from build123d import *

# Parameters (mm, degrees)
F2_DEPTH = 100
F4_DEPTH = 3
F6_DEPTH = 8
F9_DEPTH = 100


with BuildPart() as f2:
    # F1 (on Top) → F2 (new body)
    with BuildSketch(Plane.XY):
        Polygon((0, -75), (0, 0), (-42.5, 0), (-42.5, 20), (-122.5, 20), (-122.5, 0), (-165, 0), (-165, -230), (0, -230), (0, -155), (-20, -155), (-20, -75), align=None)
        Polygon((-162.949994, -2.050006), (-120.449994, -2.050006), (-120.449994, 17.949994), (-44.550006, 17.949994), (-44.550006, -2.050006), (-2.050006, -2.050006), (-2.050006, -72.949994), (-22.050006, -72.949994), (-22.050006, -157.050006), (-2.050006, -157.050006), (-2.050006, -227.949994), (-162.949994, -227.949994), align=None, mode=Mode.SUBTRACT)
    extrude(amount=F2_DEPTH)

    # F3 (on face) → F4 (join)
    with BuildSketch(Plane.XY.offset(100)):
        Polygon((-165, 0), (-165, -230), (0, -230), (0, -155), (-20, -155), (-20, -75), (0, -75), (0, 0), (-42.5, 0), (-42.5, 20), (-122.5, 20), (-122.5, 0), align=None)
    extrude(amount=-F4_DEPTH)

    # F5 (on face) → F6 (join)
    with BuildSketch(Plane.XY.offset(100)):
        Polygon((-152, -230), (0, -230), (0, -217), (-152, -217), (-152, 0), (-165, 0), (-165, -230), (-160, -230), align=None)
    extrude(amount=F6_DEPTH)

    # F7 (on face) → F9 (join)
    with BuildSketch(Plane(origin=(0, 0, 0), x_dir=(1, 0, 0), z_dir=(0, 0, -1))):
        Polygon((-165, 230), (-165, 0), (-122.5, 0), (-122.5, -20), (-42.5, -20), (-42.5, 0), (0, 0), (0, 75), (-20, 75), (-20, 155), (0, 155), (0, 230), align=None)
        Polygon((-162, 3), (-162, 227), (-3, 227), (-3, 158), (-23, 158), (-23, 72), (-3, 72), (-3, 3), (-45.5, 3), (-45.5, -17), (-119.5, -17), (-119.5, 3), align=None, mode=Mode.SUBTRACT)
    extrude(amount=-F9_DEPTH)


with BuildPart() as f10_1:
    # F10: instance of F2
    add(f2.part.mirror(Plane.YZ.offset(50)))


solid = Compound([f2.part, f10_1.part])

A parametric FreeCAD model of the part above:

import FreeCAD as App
import Part
import Sketcher
Q = App.Units.Quantity


def add_polygon(sketch, points):
    """Adds a closed chain of lines whose ends are joined by coincident constraints."""
    first, n = sketch.GeometryCount, len(points)
    for a, b in zip(points, points[1:] + points[:1]):
        sketch.addGeometry(Part.LineSegment(App.Vector(*a, 0), App.Vector(*b, 0)), False)
    for i in range(n):
        sketch.addConstraint(Sketcher.Constraint("Coincident", first + i, 2, first + (i + 1) % n, 1))

doc = App.newDocument("Part")
body = doc.addObject("PartDesign::Body", "Body")

# Sketch on XY plane
sketch1 = body.newObject("Sketcher::SketchObject", "Sketch")
sketch1.AttachmentSupport = (doc.getObject("XY_Plane"), [""])
sketch1.MapMode = "FlatFace"
add_polygon(sketch1, [(0, -75), (0, 0), (-42, 0), (-42, 20), (-122, 20), (-122, 0), (-165, 0), (-165, -230), (0, -230), (0, -155), (-20, -155), (-20, -75)])  # lines 0-11
add_polygon(sketch1, [(-163, -228), (-163, -2), (-120, -2), (-120, 18), (-45, 18), (-45, -2), (-2, -2), (-2, -73), (-22, -73), (-22, -157), (-2, -157), (-2, -228)])  # lines 12-23
sketch1.addConstraint([
    Sketcher.Constraint("Vertical", 0),
    Sketcher.Constraint("Horizontal", 1),
    Sketcher.Constraint("Vertical", 2),
    Sketcher.Constraint("Horizontal", 3),
    Sketcher.Constraint("Vertical", 4),
    Sketcher.Constraint("Horizontal", 5),
    Sketcher.Constraint("Vertical", 6),
    Sketcher.Constraint("Horizontal", 7),
    Sketcher.Constraint("Vertical", 8),
    Sketcher.Constraint("Horizontal", 9),
    Sketcher.Constraint("Vertical", 10),
    Sketcher.Constraint("Horizontal", 11),
    Sketcher.Constraint("Vertical", 12),
    Sketcher.Constraint("Horizontal", 13),
    Sketcher.Constraint("Vertical", 14),
    Sketcher.Constraint("Horizontal", 15),
    Sketcher.Constraint("Vertical", 16),
    Sketcher.Constraint("Horizontal", 17),
    Sketcher.Constraint("Vertical", 18),
    Sketcher.Constraint("Horizontal", 19),
    Sketcher.Constraint("Vertical", 20),
    Sketcher.Constraint("Horizontal", 21),
    Sketcher.Constraint("Vertical", 22),
    Sketcher.Constraint("Horizontal", 23),
    Sketcher.Constraint("Coincident", 0, 2, -1, 1),
    Sketcher.Constraint("PointOnObject", 4, 2, -1),
    Sketcher.Constraint("PointOnObject", 7, 2, -2),
    Sketcher.Constraint("Horizontal", 13, 2, 16, 2),
    Sketcher.Constraint("Vertical", 18, 2, 21, 2),
    Sketcher.Constraint("Equal", 1, 5),
    Sketcher.Constraint("Equal", 5, 13),
    Sketcher.Constraint("Equal", 13, 17),
    Sketcher.Constraint("Equal", 11, 19),
    Sketcher.Constraint("Equal", 21, 2),
    Sketcher.Constraint("Equal", 0, 8),
    Sketcher.Constraint("Equal", 3, 10),
    Sketcher.Constraint("Equal", 4, 14),
    Sketcher.Constraint("Equal", 18, 22),
    Sketcher.Constraint("DistanceX", 3, 2, 3, 1, Q("80 mm")),
    Sketcher.Constraint("DistanceX", 7, 1, 7, 2, Q("165 mm")),
    Sketcher.Constraint("DistanceX", 9, 2, 9, 1, Q("20 mm")),
    Sketcher.Constraint("DistanceY", 0, 1, 0, 2, Q("75 mm")),
    Sketcher.Constraint("DistanceX", 15, 1, 15, 2, Q("75.899988 mm")),
    Sketcher.Constraint("DistanceY", 12, 1, 12, 2, Q("225.899988 mm")),
    Sketcher.Constraint("DistanceY", 18, 2, 18, 1, Q("70.899988 mm")),
    Sketcher.Constraint("DistanceX", 12, 2, -1, 1, Q("162.949994 mm")),
    Sketcher.Constraint("DistanceY", 12, 2, -1, 1, Q("2.050006 mm")),
])
pad1 = body.newObject("PartDesign::Pad", "Pad")
pad1.Profile = sketch1
pad1.Length = 100

# Sketch on XY plane
sketch2 = body.newObject("Sketcher::SketchObject", "Sketch001")
sketch2.AttachmentSupport = (doc.getObject("XY_Plane"), [""])
sketch2.MapMode = "FlatFace"
sketch2.AttachmentOffset = App.Placement(App.Vector(0, 0, 100), App.Rotation())
add_polygon(sketch2, [(-165, 0), (-165, -230), (0, -230), (0, -155), (-20, -155), (-20, -75), (0, -75), (0, 0), (-42, 0), (-42, 20), (-122, 20), (-122, 0)])  # lines 0-11
sketch2.addConstraint([
    Sketcher.Constraint("Vertical", 0),
    Sketcher.Constraint("Horizontal", 1),
    Sketcher.Constraint("Vertical", 2),
    Sketcher.Constraint("Horizontal", 3),
    Sketcher.Constraint("Vertical", 4),
    Sketcher.Constraint("Horizontal", 5),
    Sketcher.Constraint("Vertical", 6),
    Sketcher.Constraint("Horizontal", 7),
    Sketcher.Constraint("Vertical", 8),
    Sketcher.Constraint("Horizontal", 9),
    Sketcher.Constraint("Vertical", 10),
    Sketcher.Constraint("Horizontal", 11),
    Sketcher.Constraint("Coincident", 6, 2, -1, 1),
    Sketcher.Constraint("PointOnObject", 1, 2, -2),
    Sketcher.Constraint("PointOnObject", 10, 2, -1),
    Sketcher.Constraint("Equal", 7, 11),
    Sketcher.Constraint("Equal", 9, 4),
    Sketcher.Constraint("Equal", 2, 6),
    Sketcher.Constraint("Equal", 5, 8),
    Sketcher.Constraint("DistanceX", 1, 1, 1, 2, Q("165 mm")),
    Sketcher.Constraint("DistanceX", 3, 2, 3, 1, Q("20 mm")),
    Sketcher.Constraint("DistanceX", 9, 2, 9, 1, Q("80 mm")),
    Sketcher.Constraint("DistanceY", 0, 2, 0, 1, Q("230 mm")),
])
pad2 = body.newObject("PartDesign::Pad", "Pad001")
pad2.Profile = sketch2
pad2.Length = 3
pad2.Reversed = True

# Sketch on XY plane
sketch3 = body.newObject("Sketcher::SketchObject", "Sketch002")
sketch3.AttachmentSupport = (doc.getObject("XY_Plane"), [""])
sketch3.MapMode = "FlatFace"
sketch3.AttachmentOffset = App.Placement(App.Vector(0, 0, 100), App.Rotation())
add_polygon(sketch3, [(0, -230), (0, -217), (-152, -217), (-152, 0), (-165, 0), (-165, -230)])  # lines 0-5
sketch3.addConstraint([
    Sketcher.Constraint("Vertical", 0),
    Sketcher.Constraint("Horizontal", 1),
    Sketcher.Constraint("Vertical", 2),
    Sketcher.Constraint("Horizontal", 3),
    Sketcher.Constraint("Vertical", 4),
    Sketcher.Constraint("Horizontal", 5),
    Sketcher.Constraint("PointOnObject", 0, 2, -2),
    Sketcher.Constraint("PointOnObject", 2, 2, -1),
    Sketcher.Constraint("Equal", 3, 0),
    Sketcher.Constraint("DistanceX", 1, 2, 1, 1, Q("152 mm")),
    Sketcher.Constraint("DistanceX", 3, 2, 3, 1, Q("13 mm")),
    Sketcher.Constraint("DistanceY", 2, 1, 2, 2, Q("217 mm")),
])
pad3 = body.newObject("PartDesign::Pad", "Pad002")
pad3.Profile = sketch3
pad3.Length = 8

# Sketch on XY plane
sketch4 = body.newObject("Sketcher::SketchObject", "Sketch003")
sketch4.AttachmentSupport = (doc.getObject("XY_Plane"), [""])
sketch4.MapMode = "FlatFace"
add_polygon(sketch4, [(-165, -230), (-165, 0), (-122, 0), (-122, 20), (-42, 20), (-42, 0), (0, 0), (0, -75), (-20, -75), (-20, -155), (0, -155), (0, -230)])  # lines 0-11
add_polygon(sketch4, [(-120, -3), (-162, -3), (-162, -227), (-3, -227), (-3, -158), (-23, -158), (-23, -72), (-3, -72), (-3, -3), (-46, -3), (-46, 17), (-120, 17)])  # lines 12-23
sketch4.addConstraint([
    Sketcher.Constraint("Vertical", 0),
    Sketcher.Constraint("Horizontal", 1),
    Sketcher.Constraint("Vertical", 2),
    Sketcher.Constraint("Horizontal", 3),
    Sketcher.Constraint("Vertical", 4),
    Sketcher.Constraint("Horizontal", 5),
    Sketcher.Constraint("Vertical", 6),
    Sketcher.Constraint("Horizontal", 7),
    Sketcher.Constraint("Vertical", 8),
    Sketcher.Constraint("Horizontal", 9),
    Sketcher.Constraint("Vertical", 10),
    Sketcher.Constraint("Horizontal", 11),
    Sketcher.Constraint("Horizontal", 12),
    Sketcher.Constraint("Vertical", 13),
    Sketcher.Constraint("Horizontal", 14),
    Sketcher.Constraint("Vertical", 15),
    Sketcher.Constraint("Horizontal", 16),
    Sketcher.Constraint("Vertical", 17),
    Sketcher.Constraint("Horizontal", 18),
    Sketcher.Constraint("Vertical", 19),
    Sketcher.Constraint("Horizontal", 20),
    Sketcher.Constraint("Vertical", 21),
    Sketcher.Constraint("Horizontal", 22),
    Sketcher.Constraint("Vertical", 23),
    Sketcher.Constraint("Coincident", 5, 2, -1, 1),
    Sketcher.Constraint("PointOnObject", 0, 2, -1),
    Sketcher.Constraint("PointOnObject", 9, 2, -2),
    Sketcher.Constraint("Horizontal", 12, 2, 19, 2),
    Sketcher.Constraint("Vertical", 15, 2, 18, 2),
    Sketcher.Constraint("Equal", 1, 5),
    Sketcher.Constraint("Equal", 5, 12),
    Sketcher.Constraint("Equal", 9, 16),
    Sketcher.Constraint("Equal", 12, 20),
    Sketcher.Constraint("Equal", 18, 2),
    Sketcher.Constraint("Equal", 3, 8),
    Sketcher.Constraint("Equal", 6, 10),
    Sketcher.Constraint("Equal", 15, 19),
    Sketcher.Constraint("Equal", 4, 21),
    Sketcher.Constraint("DistanceX", 3, 1, 3, 2, Q("80 mm")),
    Sketcher.Constraint("DistanceX", 7, 2, 7, 1, Q("20 mm")),
    Sketcher.Constraint("DistanceX", 11, 2, 11, 1, Q("165 mm")),
    Sketcher.Constraint("DistanceX", 14, 1, 14, 2, Q("159 mm")),
    Sketcher.Constraint("DistanceY", 0, 1, 0, 2, Q("230 mm")),
    Sketcher.Constraint("DistanceY", 13, 2, 13, 1, Q("224 mm")),
    Sketcher.Constraint("DistanceY", 15, 1, 15, 2, Q("69 mm")),
    Sketcher.Constraint("DistanceX", 12, 2, -1, 1, Q("162 mm")),
    Sketcher.Constraint("DistanceY", 12, 2, -1, 1, Q("3 mm")),
])
pad4 = body.newObject("PartDesign::Pad", "Pad003")
pad4.Profile = sketch4
pad4.Length = 100
body2 = doc.addObject("PartDesign::Body", "Body001")
doc.recompute()

mirroring = doc.addObject("Part::Mirroring", "Mirroring")
mirroring.Source = body
mirroring.Base = App.Vector(50, 0, 0)
mirroring.Normal = App.Vector(1, 0, 0)
body2.BaseFeature = mirroring
doc.recompute()
mirroring.Visibility = False

doc.recompute()
